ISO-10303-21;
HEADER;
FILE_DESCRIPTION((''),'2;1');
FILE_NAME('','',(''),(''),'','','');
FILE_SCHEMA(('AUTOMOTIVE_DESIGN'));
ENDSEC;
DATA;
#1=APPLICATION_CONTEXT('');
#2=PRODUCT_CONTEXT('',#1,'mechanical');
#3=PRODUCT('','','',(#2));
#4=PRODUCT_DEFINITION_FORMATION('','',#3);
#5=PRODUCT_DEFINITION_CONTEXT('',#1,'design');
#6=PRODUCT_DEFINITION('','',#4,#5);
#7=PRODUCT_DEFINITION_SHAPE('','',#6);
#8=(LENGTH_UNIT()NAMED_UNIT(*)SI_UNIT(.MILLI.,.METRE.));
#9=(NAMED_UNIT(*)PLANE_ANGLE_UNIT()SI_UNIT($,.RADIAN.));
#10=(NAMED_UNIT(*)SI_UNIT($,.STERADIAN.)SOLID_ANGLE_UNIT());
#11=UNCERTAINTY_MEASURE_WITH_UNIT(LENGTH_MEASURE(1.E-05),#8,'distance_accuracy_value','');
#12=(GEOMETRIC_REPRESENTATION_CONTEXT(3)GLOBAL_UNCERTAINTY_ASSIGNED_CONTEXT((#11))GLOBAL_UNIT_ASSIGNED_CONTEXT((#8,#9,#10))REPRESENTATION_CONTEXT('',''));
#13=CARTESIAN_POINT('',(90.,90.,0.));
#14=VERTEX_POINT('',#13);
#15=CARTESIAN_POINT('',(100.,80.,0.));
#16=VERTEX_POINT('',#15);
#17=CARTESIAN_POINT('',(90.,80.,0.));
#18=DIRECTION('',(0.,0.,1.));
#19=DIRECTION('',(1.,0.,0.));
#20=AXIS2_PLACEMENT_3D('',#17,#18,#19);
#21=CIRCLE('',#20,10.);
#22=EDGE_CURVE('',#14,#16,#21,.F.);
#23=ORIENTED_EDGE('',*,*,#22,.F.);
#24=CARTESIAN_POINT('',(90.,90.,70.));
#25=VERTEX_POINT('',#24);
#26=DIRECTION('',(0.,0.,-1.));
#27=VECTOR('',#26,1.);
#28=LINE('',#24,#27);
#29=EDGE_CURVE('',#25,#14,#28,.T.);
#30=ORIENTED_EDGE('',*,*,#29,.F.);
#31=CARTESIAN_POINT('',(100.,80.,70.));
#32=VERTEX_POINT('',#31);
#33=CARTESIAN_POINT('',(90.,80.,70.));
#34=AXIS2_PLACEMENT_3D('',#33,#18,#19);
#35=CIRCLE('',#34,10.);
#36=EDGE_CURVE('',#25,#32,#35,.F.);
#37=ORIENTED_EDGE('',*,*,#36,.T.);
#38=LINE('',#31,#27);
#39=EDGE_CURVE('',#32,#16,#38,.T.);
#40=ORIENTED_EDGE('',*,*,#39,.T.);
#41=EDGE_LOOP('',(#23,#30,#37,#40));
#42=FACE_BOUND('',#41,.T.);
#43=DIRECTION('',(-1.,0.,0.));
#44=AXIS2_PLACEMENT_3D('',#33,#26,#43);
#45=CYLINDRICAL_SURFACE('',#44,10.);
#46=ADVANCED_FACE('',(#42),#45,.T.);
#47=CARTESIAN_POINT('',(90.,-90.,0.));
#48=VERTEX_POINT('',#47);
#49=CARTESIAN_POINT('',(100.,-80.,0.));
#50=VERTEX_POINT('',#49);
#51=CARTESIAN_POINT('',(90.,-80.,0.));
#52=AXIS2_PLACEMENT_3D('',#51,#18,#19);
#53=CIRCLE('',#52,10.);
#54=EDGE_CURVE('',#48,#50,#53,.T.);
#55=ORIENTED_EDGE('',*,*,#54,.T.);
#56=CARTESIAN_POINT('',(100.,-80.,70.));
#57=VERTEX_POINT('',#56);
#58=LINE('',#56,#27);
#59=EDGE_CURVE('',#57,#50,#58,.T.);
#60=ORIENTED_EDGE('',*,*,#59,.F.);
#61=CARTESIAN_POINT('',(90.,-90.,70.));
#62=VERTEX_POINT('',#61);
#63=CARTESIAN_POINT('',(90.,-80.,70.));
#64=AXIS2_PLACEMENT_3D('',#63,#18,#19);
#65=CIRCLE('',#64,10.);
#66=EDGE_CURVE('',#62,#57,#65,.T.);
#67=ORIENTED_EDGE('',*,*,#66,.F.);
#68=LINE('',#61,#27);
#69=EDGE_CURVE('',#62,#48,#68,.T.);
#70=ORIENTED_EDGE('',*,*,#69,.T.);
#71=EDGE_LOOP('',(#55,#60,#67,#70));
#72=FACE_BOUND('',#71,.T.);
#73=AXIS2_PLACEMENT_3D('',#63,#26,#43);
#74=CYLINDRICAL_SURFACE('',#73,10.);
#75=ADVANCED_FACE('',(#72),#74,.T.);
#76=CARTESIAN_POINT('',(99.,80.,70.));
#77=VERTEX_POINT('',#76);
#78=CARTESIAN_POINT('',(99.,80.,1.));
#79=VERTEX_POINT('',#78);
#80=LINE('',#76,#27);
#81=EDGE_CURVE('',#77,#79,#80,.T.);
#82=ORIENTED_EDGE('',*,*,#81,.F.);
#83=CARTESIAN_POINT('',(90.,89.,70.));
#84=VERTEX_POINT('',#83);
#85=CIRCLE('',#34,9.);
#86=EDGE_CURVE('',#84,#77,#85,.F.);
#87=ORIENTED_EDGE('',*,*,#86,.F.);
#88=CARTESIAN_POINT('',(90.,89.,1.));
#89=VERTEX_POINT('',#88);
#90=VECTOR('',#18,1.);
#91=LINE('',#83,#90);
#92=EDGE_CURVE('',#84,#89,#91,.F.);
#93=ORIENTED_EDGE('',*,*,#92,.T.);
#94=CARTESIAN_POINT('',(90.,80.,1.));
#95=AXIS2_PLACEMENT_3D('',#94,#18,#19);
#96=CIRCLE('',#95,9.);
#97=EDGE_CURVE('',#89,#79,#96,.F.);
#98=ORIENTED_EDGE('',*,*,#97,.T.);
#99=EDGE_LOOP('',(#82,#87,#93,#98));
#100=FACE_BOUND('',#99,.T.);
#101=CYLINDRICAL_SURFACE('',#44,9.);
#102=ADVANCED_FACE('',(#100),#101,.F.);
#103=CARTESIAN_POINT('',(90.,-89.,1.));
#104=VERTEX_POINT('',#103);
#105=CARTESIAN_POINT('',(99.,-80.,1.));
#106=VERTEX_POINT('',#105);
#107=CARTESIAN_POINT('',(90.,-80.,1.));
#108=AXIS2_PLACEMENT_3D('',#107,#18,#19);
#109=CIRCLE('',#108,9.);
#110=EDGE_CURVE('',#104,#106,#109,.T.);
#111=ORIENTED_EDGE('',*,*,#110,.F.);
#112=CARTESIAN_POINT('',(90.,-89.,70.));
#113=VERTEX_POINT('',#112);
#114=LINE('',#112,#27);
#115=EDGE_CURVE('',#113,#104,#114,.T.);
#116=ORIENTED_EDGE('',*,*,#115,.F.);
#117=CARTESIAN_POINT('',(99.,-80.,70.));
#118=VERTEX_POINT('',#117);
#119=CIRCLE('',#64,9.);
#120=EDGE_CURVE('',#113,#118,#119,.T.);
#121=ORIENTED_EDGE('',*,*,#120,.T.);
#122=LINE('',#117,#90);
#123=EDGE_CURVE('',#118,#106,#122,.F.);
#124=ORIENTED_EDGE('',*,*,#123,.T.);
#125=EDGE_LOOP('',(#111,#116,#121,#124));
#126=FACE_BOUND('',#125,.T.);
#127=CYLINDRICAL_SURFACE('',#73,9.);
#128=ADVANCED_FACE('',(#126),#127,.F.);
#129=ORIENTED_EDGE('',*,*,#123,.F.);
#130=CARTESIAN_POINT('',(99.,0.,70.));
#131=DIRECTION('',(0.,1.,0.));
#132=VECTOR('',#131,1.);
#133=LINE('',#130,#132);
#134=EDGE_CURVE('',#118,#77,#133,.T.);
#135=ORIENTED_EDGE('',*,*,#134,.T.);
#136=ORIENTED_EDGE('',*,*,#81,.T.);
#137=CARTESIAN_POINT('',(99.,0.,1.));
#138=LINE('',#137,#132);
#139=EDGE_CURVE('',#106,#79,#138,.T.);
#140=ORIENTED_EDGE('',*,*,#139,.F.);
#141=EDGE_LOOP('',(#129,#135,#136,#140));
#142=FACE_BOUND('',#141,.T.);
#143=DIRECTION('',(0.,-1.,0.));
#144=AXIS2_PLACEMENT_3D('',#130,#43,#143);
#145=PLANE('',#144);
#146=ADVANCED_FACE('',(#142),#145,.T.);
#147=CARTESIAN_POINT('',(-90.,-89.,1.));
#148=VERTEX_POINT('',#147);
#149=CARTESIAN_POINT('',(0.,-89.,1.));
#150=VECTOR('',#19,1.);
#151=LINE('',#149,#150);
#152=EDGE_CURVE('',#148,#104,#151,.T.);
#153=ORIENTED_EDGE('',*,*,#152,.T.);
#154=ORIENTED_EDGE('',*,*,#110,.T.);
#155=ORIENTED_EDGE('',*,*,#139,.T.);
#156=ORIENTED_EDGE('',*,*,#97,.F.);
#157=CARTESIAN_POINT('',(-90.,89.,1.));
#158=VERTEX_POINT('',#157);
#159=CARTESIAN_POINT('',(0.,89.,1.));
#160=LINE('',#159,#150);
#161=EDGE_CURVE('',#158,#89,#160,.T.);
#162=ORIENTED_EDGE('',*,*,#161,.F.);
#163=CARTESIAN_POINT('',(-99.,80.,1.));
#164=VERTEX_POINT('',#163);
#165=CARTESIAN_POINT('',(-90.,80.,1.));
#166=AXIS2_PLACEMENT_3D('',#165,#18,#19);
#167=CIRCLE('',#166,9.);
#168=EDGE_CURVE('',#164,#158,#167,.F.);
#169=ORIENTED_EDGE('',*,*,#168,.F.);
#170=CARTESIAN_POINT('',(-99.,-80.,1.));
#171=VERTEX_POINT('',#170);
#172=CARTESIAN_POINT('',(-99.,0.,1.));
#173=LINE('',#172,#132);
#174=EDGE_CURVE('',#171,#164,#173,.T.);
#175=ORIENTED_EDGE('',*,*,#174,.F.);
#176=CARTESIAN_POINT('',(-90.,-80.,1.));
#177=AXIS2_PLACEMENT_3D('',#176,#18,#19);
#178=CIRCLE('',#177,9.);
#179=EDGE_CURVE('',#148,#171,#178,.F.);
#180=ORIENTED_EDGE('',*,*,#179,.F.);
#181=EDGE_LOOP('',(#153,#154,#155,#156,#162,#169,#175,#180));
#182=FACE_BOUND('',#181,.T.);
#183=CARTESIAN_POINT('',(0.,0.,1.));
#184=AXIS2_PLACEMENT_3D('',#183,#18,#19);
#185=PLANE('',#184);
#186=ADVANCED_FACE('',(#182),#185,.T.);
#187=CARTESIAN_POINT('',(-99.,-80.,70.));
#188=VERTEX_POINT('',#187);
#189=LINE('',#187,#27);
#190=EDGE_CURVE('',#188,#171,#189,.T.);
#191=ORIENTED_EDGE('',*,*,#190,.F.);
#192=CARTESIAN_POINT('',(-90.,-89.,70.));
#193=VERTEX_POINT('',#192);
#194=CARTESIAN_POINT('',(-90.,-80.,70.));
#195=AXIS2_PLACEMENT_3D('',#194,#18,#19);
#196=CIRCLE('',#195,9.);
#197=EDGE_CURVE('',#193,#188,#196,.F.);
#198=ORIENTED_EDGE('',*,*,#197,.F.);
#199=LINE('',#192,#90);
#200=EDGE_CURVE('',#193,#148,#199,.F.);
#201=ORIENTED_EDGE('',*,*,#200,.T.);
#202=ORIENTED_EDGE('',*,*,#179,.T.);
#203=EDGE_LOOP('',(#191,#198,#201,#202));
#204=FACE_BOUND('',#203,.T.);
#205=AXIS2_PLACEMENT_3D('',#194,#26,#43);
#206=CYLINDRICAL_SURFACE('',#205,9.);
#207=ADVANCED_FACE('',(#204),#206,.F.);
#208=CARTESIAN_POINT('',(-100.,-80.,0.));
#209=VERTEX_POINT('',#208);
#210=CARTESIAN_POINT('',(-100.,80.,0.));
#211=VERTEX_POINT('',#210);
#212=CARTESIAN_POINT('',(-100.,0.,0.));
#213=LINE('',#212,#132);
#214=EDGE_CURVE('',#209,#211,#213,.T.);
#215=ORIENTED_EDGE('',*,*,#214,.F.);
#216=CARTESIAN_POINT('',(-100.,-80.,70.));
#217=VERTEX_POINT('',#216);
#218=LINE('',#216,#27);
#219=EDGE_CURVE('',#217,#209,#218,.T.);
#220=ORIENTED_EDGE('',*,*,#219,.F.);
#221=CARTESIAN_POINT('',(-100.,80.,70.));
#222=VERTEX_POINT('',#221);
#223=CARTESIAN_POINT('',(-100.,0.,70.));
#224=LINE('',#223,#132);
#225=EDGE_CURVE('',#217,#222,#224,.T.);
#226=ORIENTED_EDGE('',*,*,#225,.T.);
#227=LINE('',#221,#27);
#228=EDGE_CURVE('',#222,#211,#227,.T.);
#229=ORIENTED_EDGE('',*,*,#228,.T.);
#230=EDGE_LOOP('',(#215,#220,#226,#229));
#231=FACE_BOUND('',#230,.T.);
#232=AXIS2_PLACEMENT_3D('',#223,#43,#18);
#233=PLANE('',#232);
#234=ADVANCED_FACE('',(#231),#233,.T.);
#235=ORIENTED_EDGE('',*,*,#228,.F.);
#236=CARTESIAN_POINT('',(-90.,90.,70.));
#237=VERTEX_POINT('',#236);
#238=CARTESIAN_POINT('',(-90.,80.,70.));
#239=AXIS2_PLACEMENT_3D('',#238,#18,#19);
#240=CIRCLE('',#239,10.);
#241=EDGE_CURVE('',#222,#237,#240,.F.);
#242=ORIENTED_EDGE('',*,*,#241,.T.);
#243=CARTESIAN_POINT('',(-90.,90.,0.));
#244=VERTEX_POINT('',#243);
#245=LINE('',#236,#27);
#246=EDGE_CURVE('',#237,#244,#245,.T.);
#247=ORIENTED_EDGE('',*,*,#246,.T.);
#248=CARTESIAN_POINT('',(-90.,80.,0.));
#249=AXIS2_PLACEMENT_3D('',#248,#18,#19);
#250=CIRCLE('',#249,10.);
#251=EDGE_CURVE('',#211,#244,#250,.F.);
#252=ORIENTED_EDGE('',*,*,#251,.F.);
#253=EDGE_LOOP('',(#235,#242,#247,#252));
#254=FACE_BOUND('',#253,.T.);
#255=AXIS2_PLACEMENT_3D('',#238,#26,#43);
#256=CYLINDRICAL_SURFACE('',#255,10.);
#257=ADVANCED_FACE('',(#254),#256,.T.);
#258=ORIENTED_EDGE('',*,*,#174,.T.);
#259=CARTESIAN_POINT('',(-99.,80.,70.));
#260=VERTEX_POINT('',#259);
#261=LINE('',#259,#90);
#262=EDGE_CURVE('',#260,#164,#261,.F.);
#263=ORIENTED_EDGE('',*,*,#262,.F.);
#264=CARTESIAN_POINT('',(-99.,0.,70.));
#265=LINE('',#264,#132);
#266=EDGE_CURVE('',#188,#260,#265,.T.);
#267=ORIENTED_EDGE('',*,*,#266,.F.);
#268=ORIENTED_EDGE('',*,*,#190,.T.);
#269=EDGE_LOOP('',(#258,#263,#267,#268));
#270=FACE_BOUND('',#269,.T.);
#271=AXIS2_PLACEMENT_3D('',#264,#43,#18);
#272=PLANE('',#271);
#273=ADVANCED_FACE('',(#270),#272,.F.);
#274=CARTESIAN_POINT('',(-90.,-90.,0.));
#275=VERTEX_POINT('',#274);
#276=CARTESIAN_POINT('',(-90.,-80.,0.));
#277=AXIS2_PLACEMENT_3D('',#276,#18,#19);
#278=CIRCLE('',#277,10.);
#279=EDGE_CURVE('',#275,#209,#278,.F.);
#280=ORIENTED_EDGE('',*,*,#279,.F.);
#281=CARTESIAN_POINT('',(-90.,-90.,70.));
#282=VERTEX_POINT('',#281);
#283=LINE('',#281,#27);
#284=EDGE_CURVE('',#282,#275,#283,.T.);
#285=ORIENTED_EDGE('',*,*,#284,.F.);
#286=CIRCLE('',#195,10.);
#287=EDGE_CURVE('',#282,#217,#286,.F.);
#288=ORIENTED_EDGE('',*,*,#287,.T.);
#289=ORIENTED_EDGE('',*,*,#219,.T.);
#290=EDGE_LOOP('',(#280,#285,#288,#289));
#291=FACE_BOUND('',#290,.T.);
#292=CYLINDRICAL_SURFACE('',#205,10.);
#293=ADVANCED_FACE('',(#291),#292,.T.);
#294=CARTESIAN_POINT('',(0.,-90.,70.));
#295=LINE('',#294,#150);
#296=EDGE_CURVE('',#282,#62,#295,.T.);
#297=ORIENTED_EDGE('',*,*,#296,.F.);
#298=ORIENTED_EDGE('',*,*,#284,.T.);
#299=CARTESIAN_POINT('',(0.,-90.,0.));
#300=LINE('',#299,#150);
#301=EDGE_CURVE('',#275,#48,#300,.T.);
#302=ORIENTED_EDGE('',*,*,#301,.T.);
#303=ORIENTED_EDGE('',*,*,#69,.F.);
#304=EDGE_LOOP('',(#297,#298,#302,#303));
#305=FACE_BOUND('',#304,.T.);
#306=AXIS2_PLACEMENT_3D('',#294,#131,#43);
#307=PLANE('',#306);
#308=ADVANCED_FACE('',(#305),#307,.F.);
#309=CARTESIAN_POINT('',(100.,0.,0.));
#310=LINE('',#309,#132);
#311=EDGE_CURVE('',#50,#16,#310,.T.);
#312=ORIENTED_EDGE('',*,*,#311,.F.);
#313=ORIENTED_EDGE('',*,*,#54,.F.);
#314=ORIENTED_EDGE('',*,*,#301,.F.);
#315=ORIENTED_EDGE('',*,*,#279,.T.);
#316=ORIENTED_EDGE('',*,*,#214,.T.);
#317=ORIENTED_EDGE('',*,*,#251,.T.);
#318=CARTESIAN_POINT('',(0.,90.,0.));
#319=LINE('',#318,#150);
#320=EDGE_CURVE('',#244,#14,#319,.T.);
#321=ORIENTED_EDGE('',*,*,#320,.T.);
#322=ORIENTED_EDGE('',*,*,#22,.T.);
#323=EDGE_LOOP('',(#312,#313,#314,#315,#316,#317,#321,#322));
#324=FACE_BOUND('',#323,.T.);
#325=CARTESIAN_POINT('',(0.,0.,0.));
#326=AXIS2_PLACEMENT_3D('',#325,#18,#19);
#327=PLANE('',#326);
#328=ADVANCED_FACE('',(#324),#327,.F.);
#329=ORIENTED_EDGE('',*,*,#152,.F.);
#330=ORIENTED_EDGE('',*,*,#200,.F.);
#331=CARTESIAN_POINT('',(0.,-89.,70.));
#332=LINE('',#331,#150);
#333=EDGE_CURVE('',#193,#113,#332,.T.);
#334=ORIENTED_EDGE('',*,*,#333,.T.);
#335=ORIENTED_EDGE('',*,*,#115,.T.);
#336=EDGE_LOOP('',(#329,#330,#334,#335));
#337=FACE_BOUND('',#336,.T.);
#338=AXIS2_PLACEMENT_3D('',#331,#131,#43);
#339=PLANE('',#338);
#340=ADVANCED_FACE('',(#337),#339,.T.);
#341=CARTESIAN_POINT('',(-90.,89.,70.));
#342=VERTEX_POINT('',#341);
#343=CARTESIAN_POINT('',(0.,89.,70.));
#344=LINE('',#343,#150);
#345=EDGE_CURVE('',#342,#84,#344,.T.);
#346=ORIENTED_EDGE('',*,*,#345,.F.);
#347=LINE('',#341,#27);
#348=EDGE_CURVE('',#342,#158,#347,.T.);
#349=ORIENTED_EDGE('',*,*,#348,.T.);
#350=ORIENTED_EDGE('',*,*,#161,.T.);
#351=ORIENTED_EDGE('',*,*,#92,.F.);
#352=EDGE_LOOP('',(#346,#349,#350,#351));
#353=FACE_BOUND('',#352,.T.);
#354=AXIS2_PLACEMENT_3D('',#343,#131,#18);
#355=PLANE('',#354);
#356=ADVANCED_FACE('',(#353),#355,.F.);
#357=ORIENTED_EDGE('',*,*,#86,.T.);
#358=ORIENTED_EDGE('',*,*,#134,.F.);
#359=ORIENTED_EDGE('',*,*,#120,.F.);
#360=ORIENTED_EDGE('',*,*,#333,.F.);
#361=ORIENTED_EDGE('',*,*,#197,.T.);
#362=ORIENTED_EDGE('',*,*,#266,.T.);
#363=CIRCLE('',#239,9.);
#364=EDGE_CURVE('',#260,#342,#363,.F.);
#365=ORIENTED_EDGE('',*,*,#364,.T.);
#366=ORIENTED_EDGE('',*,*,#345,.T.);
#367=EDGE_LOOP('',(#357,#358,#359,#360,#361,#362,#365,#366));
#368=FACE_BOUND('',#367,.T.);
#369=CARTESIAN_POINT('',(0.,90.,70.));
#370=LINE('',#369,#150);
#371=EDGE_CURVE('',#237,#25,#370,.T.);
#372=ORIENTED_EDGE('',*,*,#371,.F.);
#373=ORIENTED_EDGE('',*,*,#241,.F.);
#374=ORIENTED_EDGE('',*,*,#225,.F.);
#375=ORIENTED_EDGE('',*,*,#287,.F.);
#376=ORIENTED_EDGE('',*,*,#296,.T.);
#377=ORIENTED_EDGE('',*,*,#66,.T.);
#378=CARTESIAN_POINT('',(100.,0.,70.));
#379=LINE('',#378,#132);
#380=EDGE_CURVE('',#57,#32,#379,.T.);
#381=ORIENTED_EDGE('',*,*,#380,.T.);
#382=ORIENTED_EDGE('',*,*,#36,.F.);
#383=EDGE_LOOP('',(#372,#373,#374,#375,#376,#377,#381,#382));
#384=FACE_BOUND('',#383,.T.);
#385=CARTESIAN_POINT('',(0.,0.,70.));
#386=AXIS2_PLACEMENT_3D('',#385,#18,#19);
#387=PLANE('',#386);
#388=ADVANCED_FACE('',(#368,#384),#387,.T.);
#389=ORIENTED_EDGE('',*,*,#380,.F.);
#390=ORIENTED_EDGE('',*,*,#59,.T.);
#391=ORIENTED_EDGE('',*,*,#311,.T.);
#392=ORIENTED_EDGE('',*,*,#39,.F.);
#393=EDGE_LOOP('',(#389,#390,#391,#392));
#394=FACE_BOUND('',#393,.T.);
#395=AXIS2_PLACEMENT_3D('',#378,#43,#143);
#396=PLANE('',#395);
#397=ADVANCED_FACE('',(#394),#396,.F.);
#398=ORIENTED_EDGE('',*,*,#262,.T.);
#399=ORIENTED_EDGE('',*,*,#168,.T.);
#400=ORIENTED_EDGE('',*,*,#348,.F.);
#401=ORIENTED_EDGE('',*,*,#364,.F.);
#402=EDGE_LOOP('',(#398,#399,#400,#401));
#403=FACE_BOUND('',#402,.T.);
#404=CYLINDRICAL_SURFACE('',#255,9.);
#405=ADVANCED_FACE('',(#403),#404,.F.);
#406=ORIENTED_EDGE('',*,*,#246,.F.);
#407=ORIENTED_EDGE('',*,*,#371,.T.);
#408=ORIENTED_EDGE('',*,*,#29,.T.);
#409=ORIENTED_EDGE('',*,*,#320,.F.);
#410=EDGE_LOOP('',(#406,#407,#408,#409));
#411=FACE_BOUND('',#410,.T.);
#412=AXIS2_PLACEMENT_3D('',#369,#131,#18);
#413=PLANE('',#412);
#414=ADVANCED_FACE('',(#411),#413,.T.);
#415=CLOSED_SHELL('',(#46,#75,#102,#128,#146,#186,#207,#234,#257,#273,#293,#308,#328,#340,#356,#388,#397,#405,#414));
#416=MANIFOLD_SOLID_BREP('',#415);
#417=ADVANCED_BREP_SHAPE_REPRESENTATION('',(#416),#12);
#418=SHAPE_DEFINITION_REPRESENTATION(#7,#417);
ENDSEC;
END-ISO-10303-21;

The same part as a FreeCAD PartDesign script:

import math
import FreeCAD as App
import Part
import Sketcher
from FreeCAD import Vector
Q = App.Units.Quantity


def faces_at(feature, points):
    """Names of the faces that lie closest to the given points."""
    faces = feature.Shape.Faces
    near = lambda p: min(range(len(faces)), key=lambda i: faces[i].distToShape(Part.Vertex(*p))[0])
    return sorted({f"Face{near(p) + 1}" for p in points})

doc = App.newDocument("Part")
body = doc.addObject("PartDesign::Body", "Body")

sketch1 = body.newObject("Sketcher::SketchObject", "Sketch")
sketch1.AttachmentSupport = (doc.getObject("XY_Plane"), [""])
sketch1.MapMode = "FlatFace"
sketch1.addGeometry(Part.LineSegment(Vector(-90, -90, 0), Vector(90, -90, 0)), False)
sketch1.addGeometry(Part.ArcOfCircle(Part.Circle(Vector(90, -80, 0), Vector(0, 0, 1), 10), math.radians(-90), math.radians(0)), False)
sketch1.addGeometry(Part.LineSegment(Vector(100, -80, 0), Vector(100, 80, 0)), False)
sketch1.addGeometry(Part.ArcOfCircle(Part.Circle(Vector(90, 80, 0), Vector(0, 0, 1), 10), math.radians(0), math.radians(90)), False)
sketch1.addGeometry(Part.LineSegment(Vector(90, 90, 0), Vector(-90, 90, 0)), False)
sketch1.addGeometry(Part.ArcOfCircle(Part.Circle(Vector(-90, 80, 0), Vector(0, 0, 1), 10), math.radians(90), math.radians(180)), False)
sketch1.addGeometry(Part.LineSegment(Vector(-100, 80, 0), Vector(-100, -80, 0)), False)
sketch1.addGeometry(Part.ArcOfCircle(Part.Circle(Vector(-90, -80, 0), Vector(0, 0, 1), 10), math.radians(180), math.radians(270)), False)
sketch1.addConstraint(Sketcher.Constraint("Tangent", 0, 2, 1, 1))
sketch1.addConstraint(Sketcher.Constraint("Tangent", 1, 2, 2, 1))
sketch1.addConstraint(Sketcher.Constraint("Tangent", 2, 2, 3, 1))
sketch1.addConstraint(Sketcher.Constraint("Tangent", 3, 2, 4, 1))
sketch1.addConstraint(Sketcher.Constraint("Tangent", 4, 2, 5, 1))
sketch1.addConstraint(Sketcher.Constraint("Tangent", 5, 2, 6, 1))
sketch1.addConstraint(Sketcher.Constraint("Tangent", 6, 2, 7, 1))
sketch1.addConstraint(Sketcher.Constraint("Tangent", 7, 2, 0, 1))
sketch1.addConstraint(Sketcher.Constraint("Horizontal", 0))
sketch1.addConstraint(Sketcher.Constraint("Vertical", 2))
sketch1.addConstraint(Sketcher.Constraint("Horizontal", 4))
sketch1.addConstraint(Sketcher.Constraint("Vertical", 6))
sketch1.addConstraint(Sketcher.Constraint("Equal", 1, 3))
sketch1.addConstraint(Sketcher.Constraint("Equal", 3, 5))
sketch1.addConstraint(Sketcher.Constraint("Equal", 5, 7))
sketch1.addConstraint(Sketcher.Constraint("Symmetric", 1, 3, 5, 3, -1, 1))
sketch1.addConstraint(Sketcher.Constraint("Radius", 1, Q("10 mm")))
sketch1.addConstraint(Sketcher.Constraint("DistanceX", 0, 1, 0, 2, Q("180 mm")))
sketch1.addConstraint(Sketcher.Constraint("DistanceY", 2, 1, 2, 2, Q("160 mm")))
pad1 = body.newObject("PartDesign::Pad", "Pad")
pad1.Profile = sketch1
pad1.Length = 70
doc.recompute()

thickness = body.newObject("PartDesign::Thickness", "Thickness")
thickness.Base = (pad1, faces_at(pad1, [(0, 0, 70)]))
thickness.Value = 1
thickness.Reversed = True
thickness.Join = "Intersection"

doc.recompute()
